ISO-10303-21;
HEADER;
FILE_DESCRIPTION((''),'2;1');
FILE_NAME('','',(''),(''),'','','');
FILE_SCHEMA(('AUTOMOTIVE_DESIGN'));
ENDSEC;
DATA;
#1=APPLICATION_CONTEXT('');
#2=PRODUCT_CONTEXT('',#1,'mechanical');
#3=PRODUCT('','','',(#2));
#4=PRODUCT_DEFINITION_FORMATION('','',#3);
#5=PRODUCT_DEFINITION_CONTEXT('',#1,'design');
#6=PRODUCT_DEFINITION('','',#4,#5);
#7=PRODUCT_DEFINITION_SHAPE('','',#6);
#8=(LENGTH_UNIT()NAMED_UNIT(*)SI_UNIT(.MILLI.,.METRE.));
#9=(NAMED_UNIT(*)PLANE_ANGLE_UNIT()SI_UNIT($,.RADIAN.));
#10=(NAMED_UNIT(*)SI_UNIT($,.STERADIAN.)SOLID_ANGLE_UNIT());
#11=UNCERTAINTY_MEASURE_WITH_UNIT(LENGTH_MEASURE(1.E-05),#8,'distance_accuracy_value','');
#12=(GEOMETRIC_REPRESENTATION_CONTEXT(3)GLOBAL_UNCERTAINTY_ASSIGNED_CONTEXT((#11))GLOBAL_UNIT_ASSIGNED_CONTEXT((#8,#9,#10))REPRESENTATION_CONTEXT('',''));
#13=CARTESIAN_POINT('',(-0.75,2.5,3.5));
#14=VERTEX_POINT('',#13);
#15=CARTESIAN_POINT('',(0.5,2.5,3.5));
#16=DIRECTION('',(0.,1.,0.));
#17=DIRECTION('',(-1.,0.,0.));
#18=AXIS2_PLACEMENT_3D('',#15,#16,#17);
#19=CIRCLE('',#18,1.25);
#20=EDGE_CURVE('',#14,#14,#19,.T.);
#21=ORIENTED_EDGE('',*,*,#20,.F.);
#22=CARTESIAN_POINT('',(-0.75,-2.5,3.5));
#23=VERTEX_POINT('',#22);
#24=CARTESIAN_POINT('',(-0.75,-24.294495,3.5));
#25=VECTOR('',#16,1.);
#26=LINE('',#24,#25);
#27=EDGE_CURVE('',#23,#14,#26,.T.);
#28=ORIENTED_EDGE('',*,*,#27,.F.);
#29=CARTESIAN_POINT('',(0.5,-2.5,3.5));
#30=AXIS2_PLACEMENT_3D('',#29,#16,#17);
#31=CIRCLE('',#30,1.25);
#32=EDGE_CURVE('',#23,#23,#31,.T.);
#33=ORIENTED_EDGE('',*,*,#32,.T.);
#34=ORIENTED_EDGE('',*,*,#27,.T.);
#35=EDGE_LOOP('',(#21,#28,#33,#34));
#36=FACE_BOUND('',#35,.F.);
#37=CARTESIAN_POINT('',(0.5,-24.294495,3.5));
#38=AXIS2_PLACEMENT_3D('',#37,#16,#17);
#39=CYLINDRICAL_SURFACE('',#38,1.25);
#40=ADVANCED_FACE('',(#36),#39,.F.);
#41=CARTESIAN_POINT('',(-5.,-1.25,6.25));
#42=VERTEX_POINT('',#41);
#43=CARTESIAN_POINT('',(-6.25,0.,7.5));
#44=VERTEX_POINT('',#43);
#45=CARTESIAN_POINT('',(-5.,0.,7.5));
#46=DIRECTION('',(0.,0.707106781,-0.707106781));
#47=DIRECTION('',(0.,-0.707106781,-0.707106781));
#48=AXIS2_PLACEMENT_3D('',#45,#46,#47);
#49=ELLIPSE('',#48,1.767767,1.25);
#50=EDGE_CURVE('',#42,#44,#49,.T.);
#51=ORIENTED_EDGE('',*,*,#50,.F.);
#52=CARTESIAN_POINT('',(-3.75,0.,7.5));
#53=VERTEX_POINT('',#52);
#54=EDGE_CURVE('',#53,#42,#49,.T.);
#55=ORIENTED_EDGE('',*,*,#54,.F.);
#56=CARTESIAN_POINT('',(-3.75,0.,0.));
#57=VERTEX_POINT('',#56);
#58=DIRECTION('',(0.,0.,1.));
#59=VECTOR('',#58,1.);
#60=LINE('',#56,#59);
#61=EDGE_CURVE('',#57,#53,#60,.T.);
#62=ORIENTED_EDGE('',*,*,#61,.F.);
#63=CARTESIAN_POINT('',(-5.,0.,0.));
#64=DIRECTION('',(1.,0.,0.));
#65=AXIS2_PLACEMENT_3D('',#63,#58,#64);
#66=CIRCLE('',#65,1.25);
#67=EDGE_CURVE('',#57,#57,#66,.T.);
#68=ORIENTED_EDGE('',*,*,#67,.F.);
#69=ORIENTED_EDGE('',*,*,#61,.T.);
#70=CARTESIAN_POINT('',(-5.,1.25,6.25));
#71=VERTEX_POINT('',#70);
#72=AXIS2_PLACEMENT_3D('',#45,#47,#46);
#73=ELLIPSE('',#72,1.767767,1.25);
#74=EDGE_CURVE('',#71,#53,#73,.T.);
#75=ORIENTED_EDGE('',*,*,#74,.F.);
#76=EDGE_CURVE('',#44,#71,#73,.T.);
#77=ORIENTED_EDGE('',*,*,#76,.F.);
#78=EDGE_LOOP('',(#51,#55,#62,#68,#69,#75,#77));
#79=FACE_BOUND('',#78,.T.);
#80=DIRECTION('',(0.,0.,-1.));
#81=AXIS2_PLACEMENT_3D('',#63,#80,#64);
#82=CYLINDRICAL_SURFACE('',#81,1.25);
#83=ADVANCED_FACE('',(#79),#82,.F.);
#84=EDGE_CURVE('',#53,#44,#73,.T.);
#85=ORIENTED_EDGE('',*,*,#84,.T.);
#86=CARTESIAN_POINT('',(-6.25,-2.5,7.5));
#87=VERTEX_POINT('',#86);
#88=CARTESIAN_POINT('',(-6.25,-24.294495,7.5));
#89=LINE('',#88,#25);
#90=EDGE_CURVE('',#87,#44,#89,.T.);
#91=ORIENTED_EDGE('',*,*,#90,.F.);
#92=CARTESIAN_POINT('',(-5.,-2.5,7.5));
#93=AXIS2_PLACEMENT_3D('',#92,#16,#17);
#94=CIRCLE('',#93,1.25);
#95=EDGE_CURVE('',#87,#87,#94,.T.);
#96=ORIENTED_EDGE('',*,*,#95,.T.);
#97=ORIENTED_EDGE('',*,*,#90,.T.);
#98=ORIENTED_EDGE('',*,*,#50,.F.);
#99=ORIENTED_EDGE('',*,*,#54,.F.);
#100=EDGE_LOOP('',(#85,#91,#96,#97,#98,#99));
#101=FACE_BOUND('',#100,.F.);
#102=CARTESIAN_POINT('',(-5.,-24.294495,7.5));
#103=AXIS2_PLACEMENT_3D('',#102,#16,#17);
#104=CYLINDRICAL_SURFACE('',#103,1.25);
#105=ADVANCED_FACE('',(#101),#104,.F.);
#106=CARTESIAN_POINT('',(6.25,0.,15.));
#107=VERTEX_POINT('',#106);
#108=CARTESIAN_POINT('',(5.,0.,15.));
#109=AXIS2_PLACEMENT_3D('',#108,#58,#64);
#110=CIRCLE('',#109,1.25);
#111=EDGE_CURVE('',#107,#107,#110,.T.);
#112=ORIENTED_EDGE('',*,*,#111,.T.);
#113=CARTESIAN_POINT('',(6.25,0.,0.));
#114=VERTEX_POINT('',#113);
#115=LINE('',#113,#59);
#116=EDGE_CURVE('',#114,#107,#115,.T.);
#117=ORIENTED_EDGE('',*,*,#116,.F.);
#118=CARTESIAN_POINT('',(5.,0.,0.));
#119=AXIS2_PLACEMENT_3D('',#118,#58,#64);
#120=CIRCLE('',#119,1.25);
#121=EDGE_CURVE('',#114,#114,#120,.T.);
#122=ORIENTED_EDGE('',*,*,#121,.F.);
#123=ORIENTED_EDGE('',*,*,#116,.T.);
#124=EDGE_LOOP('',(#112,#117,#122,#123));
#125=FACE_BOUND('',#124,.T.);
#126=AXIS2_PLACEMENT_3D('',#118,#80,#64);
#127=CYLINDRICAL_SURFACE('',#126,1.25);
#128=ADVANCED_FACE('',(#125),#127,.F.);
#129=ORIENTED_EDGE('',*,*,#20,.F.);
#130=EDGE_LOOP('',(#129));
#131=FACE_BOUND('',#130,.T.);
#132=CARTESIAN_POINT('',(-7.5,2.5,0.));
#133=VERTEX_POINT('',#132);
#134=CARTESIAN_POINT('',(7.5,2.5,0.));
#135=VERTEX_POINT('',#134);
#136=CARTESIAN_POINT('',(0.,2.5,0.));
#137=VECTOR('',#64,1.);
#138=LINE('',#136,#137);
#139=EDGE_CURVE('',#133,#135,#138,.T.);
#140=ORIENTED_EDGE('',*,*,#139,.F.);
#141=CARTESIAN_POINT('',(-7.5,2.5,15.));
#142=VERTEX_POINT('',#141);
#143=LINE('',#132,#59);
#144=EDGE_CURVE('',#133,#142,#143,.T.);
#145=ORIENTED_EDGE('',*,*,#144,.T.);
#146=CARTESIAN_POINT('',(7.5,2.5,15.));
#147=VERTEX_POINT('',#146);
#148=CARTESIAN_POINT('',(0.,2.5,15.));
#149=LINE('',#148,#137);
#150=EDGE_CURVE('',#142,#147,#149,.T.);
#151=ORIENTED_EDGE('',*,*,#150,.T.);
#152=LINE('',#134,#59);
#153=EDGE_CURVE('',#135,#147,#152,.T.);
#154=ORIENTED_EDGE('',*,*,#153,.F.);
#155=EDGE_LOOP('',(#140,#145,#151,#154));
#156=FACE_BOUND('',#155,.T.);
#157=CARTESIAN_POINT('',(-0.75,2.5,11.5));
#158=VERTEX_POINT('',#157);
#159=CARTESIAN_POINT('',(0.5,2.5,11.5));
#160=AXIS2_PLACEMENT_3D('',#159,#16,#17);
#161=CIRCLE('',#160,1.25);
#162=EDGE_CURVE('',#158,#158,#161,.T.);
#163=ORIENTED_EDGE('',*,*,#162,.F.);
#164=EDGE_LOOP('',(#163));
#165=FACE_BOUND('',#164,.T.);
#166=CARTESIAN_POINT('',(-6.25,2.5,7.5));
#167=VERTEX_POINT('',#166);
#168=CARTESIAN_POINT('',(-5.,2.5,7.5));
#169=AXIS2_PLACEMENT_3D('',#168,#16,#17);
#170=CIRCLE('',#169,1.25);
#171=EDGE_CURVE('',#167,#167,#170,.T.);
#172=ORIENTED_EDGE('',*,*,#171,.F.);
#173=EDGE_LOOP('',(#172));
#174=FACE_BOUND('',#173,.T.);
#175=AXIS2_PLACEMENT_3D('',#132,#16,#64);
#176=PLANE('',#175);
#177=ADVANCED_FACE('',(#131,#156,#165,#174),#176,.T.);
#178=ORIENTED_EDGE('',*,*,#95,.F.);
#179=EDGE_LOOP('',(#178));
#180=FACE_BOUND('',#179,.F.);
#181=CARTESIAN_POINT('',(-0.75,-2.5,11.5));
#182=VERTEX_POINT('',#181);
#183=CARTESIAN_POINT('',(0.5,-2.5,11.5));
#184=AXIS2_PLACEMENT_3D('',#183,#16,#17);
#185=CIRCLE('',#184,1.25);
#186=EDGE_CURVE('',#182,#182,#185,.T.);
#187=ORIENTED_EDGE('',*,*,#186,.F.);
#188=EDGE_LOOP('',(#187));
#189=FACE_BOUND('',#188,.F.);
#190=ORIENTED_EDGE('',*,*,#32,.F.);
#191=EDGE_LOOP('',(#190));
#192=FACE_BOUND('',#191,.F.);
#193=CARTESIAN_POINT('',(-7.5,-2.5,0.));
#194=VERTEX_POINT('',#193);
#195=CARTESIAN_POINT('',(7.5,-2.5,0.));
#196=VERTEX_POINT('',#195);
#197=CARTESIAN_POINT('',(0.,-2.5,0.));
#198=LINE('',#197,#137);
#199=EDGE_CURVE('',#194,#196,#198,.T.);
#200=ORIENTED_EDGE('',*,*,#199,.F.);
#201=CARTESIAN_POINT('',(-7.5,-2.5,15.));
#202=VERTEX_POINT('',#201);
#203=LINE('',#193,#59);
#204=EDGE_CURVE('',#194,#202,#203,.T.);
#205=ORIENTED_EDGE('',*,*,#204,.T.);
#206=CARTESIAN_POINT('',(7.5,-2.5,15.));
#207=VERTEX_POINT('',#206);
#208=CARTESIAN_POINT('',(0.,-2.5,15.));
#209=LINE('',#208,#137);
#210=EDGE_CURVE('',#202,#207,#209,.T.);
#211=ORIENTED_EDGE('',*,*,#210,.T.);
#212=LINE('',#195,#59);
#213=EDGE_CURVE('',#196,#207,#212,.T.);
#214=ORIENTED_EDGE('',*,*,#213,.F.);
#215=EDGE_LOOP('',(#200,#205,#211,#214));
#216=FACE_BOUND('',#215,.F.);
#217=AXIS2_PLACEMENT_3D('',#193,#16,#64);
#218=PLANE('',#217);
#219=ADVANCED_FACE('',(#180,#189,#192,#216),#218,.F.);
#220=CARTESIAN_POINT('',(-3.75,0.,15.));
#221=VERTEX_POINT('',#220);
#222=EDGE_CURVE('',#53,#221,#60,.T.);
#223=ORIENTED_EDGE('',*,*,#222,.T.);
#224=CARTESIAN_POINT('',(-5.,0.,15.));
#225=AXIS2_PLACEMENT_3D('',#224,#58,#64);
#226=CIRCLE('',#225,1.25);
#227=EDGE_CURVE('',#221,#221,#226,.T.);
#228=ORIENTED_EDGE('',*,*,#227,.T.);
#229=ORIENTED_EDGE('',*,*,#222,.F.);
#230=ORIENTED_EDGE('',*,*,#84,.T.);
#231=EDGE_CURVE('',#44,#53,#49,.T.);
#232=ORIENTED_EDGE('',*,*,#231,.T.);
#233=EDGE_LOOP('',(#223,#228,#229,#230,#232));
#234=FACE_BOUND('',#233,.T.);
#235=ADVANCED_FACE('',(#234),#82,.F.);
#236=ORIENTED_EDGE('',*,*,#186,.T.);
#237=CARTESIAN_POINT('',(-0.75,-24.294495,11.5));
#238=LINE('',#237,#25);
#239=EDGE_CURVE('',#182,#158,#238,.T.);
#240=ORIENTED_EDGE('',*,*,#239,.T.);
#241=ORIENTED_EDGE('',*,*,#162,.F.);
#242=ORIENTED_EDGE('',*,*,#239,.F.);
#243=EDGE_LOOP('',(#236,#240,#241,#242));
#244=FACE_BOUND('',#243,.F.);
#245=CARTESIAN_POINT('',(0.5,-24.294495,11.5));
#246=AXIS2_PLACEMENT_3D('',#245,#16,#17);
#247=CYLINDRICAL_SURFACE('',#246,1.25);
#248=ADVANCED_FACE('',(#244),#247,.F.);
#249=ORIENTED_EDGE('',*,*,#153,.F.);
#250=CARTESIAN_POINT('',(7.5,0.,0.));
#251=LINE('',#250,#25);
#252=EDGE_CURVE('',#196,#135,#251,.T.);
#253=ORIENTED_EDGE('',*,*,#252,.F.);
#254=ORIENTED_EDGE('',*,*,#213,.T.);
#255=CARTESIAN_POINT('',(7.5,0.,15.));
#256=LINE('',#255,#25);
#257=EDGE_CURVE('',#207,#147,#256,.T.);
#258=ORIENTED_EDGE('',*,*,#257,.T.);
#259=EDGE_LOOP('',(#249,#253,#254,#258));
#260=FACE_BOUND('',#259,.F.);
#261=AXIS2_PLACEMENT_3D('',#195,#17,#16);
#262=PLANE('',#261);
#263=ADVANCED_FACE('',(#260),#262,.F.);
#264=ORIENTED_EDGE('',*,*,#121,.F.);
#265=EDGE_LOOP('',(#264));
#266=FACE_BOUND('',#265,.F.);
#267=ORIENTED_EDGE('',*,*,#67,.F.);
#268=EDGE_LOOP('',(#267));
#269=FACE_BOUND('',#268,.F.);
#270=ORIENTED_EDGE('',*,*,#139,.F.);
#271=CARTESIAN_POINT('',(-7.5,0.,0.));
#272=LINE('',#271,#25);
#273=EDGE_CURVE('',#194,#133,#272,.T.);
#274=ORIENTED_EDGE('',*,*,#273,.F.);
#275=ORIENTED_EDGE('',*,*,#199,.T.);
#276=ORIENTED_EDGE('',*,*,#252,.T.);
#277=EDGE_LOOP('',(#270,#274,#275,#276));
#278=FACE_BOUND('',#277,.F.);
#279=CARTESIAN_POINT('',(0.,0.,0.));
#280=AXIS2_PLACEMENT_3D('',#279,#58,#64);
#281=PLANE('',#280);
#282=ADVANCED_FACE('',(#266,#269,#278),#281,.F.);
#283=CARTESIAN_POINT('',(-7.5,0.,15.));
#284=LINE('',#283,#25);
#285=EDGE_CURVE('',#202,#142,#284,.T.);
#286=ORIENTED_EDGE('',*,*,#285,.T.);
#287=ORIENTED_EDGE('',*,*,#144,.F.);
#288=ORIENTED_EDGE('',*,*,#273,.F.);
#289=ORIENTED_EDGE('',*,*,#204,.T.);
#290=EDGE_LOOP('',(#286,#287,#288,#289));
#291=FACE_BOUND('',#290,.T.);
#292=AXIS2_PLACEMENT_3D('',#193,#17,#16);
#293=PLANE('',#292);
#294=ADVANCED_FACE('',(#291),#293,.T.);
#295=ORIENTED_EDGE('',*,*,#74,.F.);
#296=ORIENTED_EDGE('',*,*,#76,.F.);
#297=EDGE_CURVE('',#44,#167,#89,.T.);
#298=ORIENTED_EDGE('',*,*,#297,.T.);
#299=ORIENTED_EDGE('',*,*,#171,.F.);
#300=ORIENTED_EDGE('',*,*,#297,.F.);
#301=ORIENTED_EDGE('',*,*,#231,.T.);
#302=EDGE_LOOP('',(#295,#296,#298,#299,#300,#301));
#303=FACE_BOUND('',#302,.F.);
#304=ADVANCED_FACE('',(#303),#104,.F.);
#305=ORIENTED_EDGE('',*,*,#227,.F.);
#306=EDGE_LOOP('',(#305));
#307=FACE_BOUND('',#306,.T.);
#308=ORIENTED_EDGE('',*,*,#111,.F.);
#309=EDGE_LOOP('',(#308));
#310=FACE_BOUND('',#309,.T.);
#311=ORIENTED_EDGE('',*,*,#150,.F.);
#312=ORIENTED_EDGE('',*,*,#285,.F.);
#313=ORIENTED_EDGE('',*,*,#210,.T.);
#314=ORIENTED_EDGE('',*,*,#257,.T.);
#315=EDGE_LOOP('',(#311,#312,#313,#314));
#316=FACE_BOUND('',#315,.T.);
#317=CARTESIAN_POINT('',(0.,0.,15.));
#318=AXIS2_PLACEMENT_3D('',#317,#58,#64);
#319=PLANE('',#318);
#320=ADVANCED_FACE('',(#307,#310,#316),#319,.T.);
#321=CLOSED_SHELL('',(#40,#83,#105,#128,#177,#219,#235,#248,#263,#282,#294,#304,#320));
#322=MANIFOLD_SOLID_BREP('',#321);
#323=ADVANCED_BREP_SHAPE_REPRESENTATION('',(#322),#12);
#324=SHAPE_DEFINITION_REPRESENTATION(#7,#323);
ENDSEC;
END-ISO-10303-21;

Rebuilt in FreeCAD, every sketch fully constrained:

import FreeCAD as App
import Part
import Sketcher
from FreeCAD import Vector

doc = App.newDocument("Part")
params = doc.addObject("Spreadsheet::Sheet", "Params")
for row, (alias, value) in enumerate([
    ("sketch1_diameter", "2.5 mm"),
    ("sketch1_width", "15 mm"),
    ("sketch1_height", "5 mm"),
    ("pad1_length", "15 mm"),
    ("sketch2_diameter", "2.5 mm"),
    ("hole_diameter", "2.5 mm"),
], start=1):
    params.set(f"A{row}", alias)
    params.set(f"B{row}", "=" + value)
    params.setAlias(f"B{row}", alias)

body = doc.addObject("PartDesign::Body", "Body")

# Sketch on XY plane
sketch1 = body.newObject("Sketcher::SketchObject", "Sketch")
sketch1.AttachmentSupport = (doc.getObject("XY_Plane"), [""])
sketch1.MapMode = "FlatFace"
sketch1.addGeometry(Part.LineSegment(Vector(-7.5, 2.5, 0), Vector(-7.5, -2.5, 0)), False)
sketch1.addGeometry(Part.LineSegment(Vector(-7.5, -2.5, 0), Vector(7.5, -2.5, 0)), False)
sketch1.addGeometry(Part.LineSegment(Vector(7.5, -2.5, 0), Vector(7.5, 2.5, 0)), False)
sketch1.addGeometry(Part.LineSegment(Vector(7.5, 2.5, 0), Vector(-7.5, 2.5, 0)), False)
sketch1.addGeometry(Part.Circle(Vector(-5, 0, 0), Vector(0, 0, 1), 1.2), False)
sketch1.addGeometry(Part.Circle(Vector(5, 0, 0), Vector(0, 0, 1), 1.2), False)
sketch1.addConstraint(Sketcher.Constraint("Coincident", 0, 2, 1, 1))
sketch1.addConstraint(Sketcher.Constraint("Coincident", 1, 2, 2, 1))
sketch1.addConstraint(Sketcher.Constraint("Coincident", 2, 2, 3, 1))
sketch1.addConstraint(Sketcher.Constraint("Coincident", 3, 2, 0, 1))
sketch1.addConstraint(Sketcher.Constraint("Vertical", 0))
sketch1.addConstraint(Sketcher.Constraint("Horizontal", 1))
sketch1.addConstraint(Sketcher.Constraint("Vertical", 2))
sketch1.addConstraint(Sketcher.Constraint("Horizontal", 3))
sketch1.addConstraint(Sketcher.Constraint("Equal", 4, 5))
sketch1.addConstraint(Sketcher.Constraint("Symmetric", 4, 3, 5, 3, -1, 1))
sketch1.addConstraint(Sketcher.Constraint("Symmetric", 0, 2, 2, 2, -1, 1))
sketch1.addConstraint(Sketcher.Constraint("PointOnObject", 4, 3, -1))
sketch1.addConstraint(Sketcher.Constraint("Diameter", 4, 2.5))
sketch1.addConstraint(Sketcher.Constraint("DistanceX", 1, 1, 1, 2, 15.0))
sketch1.addConstraint(Sketcher.Constraint("DistanceY", 0, 2, 0, 1, 5.0))
sketch1.addConstraint(Sketcher.Constraint("DistanceX", 4, 3, -1, 1, 5.0))
sketch1.setExpression("Constraints[12]", "Params.sketch1_diameter")
sketch1.setExpression("Constraints[13]", "Params.sketch1_width")
sketch1.setExpression("Constraints[14]", "Params.sketch1_height")
pad1 = body.newObject("PartDesign::Pad", "Pad")
pad1.Profile = sketch1
pad1.setExpression("Length", "Params.pad1_length")

# Sketch on XZ plane
sketch2 = body.newObject("Sketcher::SketchObject", "Sketch001")
sketch2.AttachmentSupport = (doc.getObject("XZ_Plane"), [""])
sketch2.MapMode = "FlatFace"
sketch2.AttachmentOffset = App.Placement(Vector(0, 0, 2.5), App.Rotation())
sketch2.addGeometry(Part.Circle(Vector(0.5, 11.5, 0), Vector(0, 0, 1), 1.2), False)
sketch2.addGeometry(Part.Circle(Vector(-5, 7.5, 0), Vector(0, 0, 1), 1.2), False)
sketch2.addGeometry(Part.Circle(Vector(0.5, 3.5, 0), Vector(0, 0, 1), 1.2), False)
sketch2.addConstraint(Sketcher.Constraint("Equal", 0, 1))
sketch2.addConstraint(Sketcher.Constraint("Equal", 1, 2))
sketch2.addConstraint(Sketcher.Constraint("Vertical", 0, 3, 2, 3))
sketch2.addConstraint(Sketcher.Constraint("Diameter", 0, 2.5))
sketch2.addConstraint(Sketcher.Constraint("DistanceX", 1, 3, -1, 1, 5.0))
sketch2.addConstraint(Sketcher.Constraint("DistanceY", 1, 3, 0, 3, 4.0))
sketch2.addConstraint(Sketcher.Constraint("DistanceY", 2, 3, 1, 3, 4.0))
sketch2.addConstraint(Sketcher.Constraint("DistanceX", -1, 1, 0, 3, 0.5))
sketch2.addConstraint(Sketcher.Constraint("DistanceY", -1, 1, 0, 3, 11.5))
sketch2.setExpression("Constraints[3]", "Params.sketch2_diameter")
doc.recompute()
hole = body.newObject("PartDesign::Hole", "Hole")
hole.Profile = sketch2
hole.ThreadType = "None"
hole.setExpression("Diameter", "Params.hole_diameter")
hole.DepthType = "ThroughAll"

doc.recompute()
